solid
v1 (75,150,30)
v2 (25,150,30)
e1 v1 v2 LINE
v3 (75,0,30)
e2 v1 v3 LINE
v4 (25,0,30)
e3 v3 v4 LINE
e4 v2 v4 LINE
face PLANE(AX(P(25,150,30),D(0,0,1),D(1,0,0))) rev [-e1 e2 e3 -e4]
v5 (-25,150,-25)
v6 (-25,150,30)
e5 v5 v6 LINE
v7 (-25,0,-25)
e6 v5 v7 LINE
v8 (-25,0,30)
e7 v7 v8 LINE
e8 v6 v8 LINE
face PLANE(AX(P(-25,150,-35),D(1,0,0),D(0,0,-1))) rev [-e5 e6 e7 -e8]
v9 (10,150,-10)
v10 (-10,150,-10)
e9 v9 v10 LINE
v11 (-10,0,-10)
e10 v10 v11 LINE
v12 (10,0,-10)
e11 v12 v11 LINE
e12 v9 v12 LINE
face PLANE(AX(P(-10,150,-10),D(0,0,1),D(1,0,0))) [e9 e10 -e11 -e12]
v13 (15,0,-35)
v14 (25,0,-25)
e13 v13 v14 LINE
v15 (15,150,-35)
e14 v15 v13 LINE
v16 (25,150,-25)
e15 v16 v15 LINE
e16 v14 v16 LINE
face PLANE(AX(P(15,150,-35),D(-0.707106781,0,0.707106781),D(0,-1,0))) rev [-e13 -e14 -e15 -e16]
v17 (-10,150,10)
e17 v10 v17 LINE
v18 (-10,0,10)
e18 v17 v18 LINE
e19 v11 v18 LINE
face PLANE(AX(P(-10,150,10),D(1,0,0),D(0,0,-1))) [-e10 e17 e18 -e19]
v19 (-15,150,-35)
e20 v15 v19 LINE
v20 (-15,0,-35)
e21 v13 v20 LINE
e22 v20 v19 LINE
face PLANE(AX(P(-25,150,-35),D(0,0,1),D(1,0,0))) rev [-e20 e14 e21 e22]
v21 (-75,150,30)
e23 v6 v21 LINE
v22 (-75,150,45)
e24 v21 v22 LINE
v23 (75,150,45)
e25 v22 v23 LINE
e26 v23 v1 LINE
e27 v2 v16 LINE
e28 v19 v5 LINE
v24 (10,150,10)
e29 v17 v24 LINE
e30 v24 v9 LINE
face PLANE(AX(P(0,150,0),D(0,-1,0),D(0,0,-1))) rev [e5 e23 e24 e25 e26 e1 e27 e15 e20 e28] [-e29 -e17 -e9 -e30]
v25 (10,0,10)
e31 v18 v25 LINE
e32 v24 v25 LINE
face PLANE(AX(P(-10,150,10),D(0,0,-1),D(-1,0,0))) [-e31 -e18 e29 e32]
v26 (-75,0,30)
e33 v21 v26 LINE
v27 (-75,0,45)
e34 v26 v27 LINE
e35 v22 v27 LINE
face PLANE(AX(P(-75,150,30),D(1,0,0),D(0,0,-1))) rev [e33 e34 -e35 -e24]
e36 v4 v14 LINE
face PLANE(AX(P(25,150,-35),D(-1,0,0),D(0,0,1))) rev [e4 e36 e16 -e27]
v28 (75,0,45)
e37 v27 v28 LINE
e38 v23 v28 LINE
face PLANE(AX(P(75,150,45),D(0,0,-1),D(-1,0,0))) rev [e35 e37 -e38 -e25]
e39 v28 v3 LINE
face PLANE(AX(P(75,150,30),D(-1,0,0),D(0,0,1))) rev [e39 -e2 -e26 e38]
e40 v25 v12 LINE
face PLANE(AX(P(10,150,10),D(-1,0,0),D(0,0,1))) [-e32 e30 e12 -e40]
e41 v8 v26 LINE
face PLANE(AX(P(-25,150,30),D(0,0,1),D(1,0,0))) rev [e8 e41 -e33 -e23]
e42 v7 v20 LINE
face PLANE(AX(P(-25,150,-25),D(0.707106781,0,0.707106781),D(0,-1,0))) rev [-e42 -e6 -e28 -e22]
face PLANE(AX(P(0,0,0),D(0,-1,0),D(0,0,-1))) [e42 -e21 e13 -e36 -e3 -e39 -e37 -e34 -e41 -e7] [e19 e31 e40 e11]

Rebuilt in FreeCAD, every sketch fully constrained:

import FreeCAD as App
import Part
import Sketcher
Q = App.Units.Quantity


def edges_at(feature, points):
    """Names of the edges that pass closest to the given points."""
    edges = feature.Shape.Edges
    near = lambda p: min(range(len(edges)), key=lambda i: edges[i].distToShape(Part.Vertex(*p))[0])
    return sorted({f"Edge{near(p) + 1}" for p in points})


def add_polygon(sketch, points):
    """Adds a closed chain of lines whose ends are joined by coincident constraints."""
    first, n = sketch.GeometryCount, len(points)
    for a, b in zip(points, points[1:] + points[:1]):
        sketch.addGeometry(Part.LineSegment(App.Vector(*a, 0), App.Vector(*b, 0)), False)
    for i in range(n):
        sketch.addConstraint(Sketcher.Constraint("Coincident", first + i, 2, first + (i + 1) % n, 1))

doc = App.newDocument("Part")
body = doc.addObject("PartDesign::Body", "Body")

sketch1 = doc.addObject("Sketcher::SketchObject", "Sketch")
body.addObject(sketch1)
sketch1.AttachmentSupport = (doc.XZ_Plane, [""])
sketch1.MapMode = "FlatFace"
add_polygon(sketch1, [(25, -35), (-25, -35), (-25, 30), (-75, 30), (-75, 45), (75, 45), (75, 30), (25, 30)])
add_polygon(sketch1, [(-10, 10), (-10, -10), (10, -10), (10, 10)])
sketch1.addConstraint([
    Sketcher.Constraint("Horizontal", 0),
    Sketcher.Constraint("Vertical", 1),
    Sketcher.Constraint("Horizontal", 2),
    Sketcher.Constraint("Vertical", 3),
    Sketcher.Constraint("Horizontal", 4),
    Sketcher.Constraint("Vertical", 5),
    Sketcher.Constraint("Horizontal", 6),
    Sketcher.Constraint("Vertical", 7),
    Sketcher.Constraint("Vertical", 8),
    Sketcher.Constraint("Horizontal", 9),
    Sketcher.Constraint("Vertical", 10),
    Sketcher.Constraint("Horizontal", 11),
    Sketcher.Constraint("Symmetric", 8, 2, 10, 2, -1, 1),
    Sketcher.Constraint("Symmetric", 2, 2, 5, 2, -2),
    Sketcher.Constraint("Equal", 0, 2),
    Sketcher.Constraint("Equal", 2, 6),
    Sketcher.Constraint("Equal", 11, 8),
    Sketcher.Constraint("DistanceX", 0, 2, 0, 1, Q("50 mm")),
    Sketcher.Constraint("DistanceX", 9, 1, 9, 2, Q("20 mm")),
    Sketcher.Constraint("DistanceY", 1, 1, 1, 2, Q("65 mm")),
    Sketcher.Constraint("DistanceY", 3, 1, 3, 2, Q("15 mm")),
    Sketcher.Constraint("DistanceY", 0, 2, -1, 1, Q("35 mm")),
])
pad1 = doc.addObject("PartDesign::Pad", "Pad")
body.addObject(pad1)
pad1.Profile = sketch1
pad1.Length = 150
pad1.Reversed = True
doc.recompute()

chamfer = doc.addObject("PartDesign::Chamfer", "Chamfer")
body.addObject(chamfer)
chamfer.Base = (pad1, edges_at(pad1, [(-25, 75, -35), (25, 75, -35)]))
chamfer.Size = 10

doc.recompute()
